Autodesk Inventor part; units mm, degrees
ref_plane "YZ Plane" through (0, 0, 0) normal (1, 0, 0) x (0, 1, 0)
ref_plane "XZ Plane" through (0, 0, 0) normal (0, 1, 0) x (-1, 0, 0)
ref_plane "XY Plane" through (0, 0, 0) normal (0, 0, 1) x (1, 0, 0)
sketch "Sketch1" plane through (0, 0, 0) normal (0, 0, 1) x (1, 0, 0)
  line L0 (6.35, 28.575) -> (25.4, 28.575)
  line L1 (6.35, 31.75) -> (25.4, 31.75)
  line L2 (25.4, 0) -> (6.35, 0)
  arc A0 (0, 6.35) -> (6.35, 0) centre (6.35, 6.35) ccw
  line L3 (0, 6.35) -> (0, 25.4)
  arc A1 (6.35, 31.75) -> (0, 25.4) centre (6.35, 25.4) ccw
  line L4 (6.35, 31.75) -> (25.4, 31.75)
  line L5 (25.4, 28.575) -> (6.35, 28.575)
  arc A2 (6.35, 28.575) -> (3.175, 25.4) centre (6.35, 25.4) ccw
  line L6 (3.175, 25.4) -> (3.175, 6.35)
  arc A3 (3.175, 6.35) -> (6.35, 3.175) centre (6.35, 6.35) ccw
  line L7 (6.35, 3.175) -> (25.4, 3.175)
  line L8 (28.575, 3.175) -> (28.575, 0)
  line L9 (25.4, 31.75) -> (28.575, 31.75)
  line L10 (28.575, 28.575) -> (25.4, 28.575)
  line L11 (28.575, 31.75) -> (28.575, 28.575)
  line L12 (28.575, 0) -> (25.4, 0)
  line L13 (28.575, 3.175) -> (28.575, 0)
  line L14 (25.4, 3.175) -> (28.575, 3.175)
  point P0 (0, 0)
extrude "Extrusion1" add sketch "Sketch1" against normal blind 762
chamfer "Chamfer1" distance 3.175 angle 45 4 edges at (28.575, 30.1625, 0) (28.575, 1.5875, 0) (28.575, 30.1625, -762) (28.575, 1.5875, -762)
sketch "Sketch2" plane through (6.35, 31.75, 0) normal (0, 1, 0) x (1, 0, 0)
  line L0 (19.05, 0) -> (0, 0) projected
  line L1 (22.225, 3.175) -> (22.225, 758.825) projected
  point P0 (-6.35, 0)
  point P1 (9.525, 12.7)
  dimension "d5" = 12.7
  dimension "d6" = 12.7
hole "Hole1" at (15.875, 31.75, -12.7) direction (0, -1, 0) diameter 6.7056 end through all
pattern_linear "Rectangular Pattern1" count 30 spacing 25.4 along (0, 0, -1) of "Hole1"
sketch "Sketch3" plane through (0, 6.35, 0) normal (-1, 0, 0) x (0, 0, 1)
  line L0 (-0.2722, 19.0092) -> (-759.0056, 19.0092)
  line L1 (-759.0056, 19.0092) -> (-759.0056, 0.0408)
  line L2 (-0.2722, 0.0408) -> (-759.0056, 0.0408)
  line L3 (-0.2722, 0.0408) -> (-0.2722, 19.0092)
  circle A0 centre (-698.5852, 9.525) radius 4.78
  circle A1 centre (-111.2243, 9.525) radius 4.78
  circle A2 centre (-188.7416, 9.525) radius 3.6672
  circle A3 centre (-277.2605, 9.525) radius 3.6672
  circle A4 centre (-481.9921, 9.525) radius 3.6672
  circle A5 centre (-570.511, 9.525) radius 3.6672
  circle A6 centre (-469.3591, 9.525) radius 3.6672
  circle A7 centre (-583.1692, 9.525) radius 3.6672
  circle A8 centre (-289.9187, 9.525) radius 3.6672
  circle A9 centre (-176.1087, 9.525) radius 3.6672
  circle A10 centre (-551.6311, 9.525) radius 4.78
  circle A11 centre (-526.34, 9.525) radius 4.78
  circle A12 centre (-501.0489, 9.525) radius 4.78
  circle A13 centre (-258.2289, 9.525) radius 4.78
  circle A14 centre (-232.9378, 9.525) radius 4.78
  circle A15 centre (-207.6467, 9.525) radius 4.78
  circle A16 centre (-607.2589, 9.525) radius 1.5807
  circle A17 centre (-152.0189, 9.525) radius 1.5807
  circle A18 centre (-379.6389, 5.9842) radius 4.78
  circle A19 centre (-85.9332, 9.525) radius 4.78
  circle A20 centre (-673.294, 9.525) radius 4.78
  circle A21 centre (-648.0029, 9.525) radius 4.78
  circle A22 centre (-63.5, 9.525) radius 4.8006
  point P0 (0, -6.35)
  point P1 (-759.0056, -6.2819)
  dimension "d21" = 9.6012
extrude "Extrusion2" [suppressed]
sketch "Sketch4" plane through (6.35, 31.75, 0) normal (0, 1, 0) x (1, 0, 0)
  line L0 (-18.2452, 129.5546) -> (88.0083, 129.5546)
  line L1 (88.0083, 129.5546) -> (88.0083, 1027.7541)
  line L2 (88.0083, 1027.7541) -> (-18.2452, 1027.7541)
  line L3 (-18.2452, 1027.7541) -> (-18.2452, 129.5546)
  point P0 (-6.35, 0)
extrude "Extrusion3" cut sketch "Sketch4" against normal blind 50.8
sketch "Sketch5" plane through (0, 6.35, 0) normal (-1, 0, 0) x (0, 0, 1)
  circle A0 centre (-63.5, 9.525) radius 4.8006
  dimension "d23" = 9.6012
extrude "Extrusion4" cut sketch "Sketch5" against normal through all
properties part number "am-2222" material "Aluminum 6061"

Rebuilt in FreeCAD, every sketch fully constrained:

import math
import FreeCAD as App
import Part
import Sketcher
Q = App.Units.Quantity


def edges_at(feature, points):
    """Names of the edges that pass closest to the given points."""
    edges = feature.Shape.Edges
    near = lambda p: min(range(len(edges)), key=lambda i: edges[i].distToShape(Part.Vertex(*p))[0])
    return sorted({f"Edge{near(p) + 1}" for p in points})

doc = App.newDocument("Part")
body = doc.addObject("PartDesign::Body", "Body")

# Sketch on XY plane
sketch1 = body.newObject("Sketcher::SketchObject", "Sketch")
sketch1.AttachmentSupport = (doc.getObject("XY_Plane"), [""])
sketch1.MapMode = "FlatFace"
sketch1.addGeometry(Part.ArcOfCircle(Part.Circle(App.Vector(6.3, 25.4, 0), App.Vector(0, 0, 1), 3.2), math.radians(90), math.radians(180)), False)
sketch1.addGeometry(Part.LineSegment(App.Vector(6.3, 28.6, 0), App.Vector(28.6, 28.6, 0)), False)
sketch1.addGeometry(Part.LineSegment(App.Vector(28.6, 28.6, 0), App.Vector(28.6, 31.8, 0)), False)
sketch1.addGeometry(Part.LineSegment(App.Vector(28.6, 31.8, 0), App.Vector(6.3, 31.8, 0)), False)
sketch1.addGeometry(Part.ArcOfCircle(Part.Circle(App.Vector(6.3, 25.4, 0), App.Vector(0, 0, 1), 6.4), math.radians(90), math.radians(180)), False)
sketch1.addGeometry(Part.LineSegment(App.Vector(0, 25.4, 0), App.Vector(0, 6.3, 0)), False)
sketch1.addGeometry(Part.ArcOfCircle(Part.Circle(App.Vector(6.3, 6.3, 0), App.Vector(0, 0, 1), 6.3), math.radians(180), math.radians(270)), False)
sketch1.addGeometry(Part.LineSegment(App.Vector(6.3, 0, 0), App.Vector(28.6, 0, 0)), False)
sketch1.addGeometry(Part.LineSegment(App.Vector(28.6, 0, 0), App.Vector(28.6, 3.2, 0)), False)
sketch1.addGeometry(Part.LineSegment(App.Vector(28.6, 3.2, 0), App.Vector(6.3, 3.2, 0)), False)
sketch1.addGeometry(Part.ArcOfCircle(Part.Circle(App.Vector(6.3, 6.3, 0), App.Vector(0, 0, 1), 3.2), math.radians(180), math.radians(270)), False)
sketch1.addGeometry(Part.LineSegment(App.Vector(3.2, 6.3, 0), App.Vector(3.2, 25.4, 0)), False)
sketch1.addConstraint(Sketcher.Constraint("Tangent", 0, 1, 1, 1))
sketch1.addConstraint(Sketcher.Constraint("Coincident", 1, 2, 2, 1))
sketch1.addConstraint(Sketcher.Constraint("Coincident", 2, 2, 3, 1))
sketch1.addConstraint(Sketcher.Constraint("Tangent", 3, 2, 4, 1))
sketch1.addConstraint(Sketcher.Constraint("Tangent", 4, 2, 5, 1))
sketch1.addConstraint(Sketcher.Constraint("Tangent", 5, 2, 6, 1))
sketch1.addConstraint(Sketcher.Constraint("Tangent", 6, 2, 7, 1))
sketch1.addConstraint(Sketcher.Constraint("Coincident", 7, 2, 8, 1))
sketch1.addConstraint(Sketcher.Constraint("Coincident", 8, 2, 9, 1))
sketch1.addConstraint(Sketcher.Constraint("Tangent", 9, 2, 10, 2))
sketch1.addConstraint(Sketcher.Constraint("Tangent", 10, 1, 11, 1))
sketch1.addConstraint(Sketcher.Constraint("Tangent", 11, 2, 0, 2))
sketch1.addConstraint(Sketcher.Constraint("Horizontal", 1))
sketch1.addConstraint(Sketcher.Constraint("Vertical", 2))
sketch1.addConstraint(Sketcher.Constraint("Horizontal", 3))
sketch1.addConstraint(Sketcher.Constraint("Vertical", 5))
sketch1.addConstraint(Sketcher.Constraint("Horizontal", 7))
sketch1.addConstraint(Sketcher.Constraint("Vertical", 8))
sketch1.addConstraint(Sketcher.Constraint("Horizontal", 9))
sketch1.addConstraint(Sketcher.Constraint("Vertical", 11))
sketch1.addConstraint(Sketcher.Constraint("Coincident", 4, 3, 0, 3))
sketch1.addConstraint(Sketcher.Constraint("Coincident", 10, 3, 6, 3))
sketch1.addConstraint(Sketcher.Constraint("Equal", 4, 6))
sketch1.addConstraint(Sketcher.Constraint("PointOnObject", 4, 2, -2))
sketch1.addConstraint(Sketcher.Constraint("PointOnObject", 6, 2, -1))
sketch1.addConstraint(Sketcher.Constraint("Vertical", 2, 2, 7, 2))
sketch1.addConstraint(Sketcher.Constraint("Radius", 4, Q("0.25 in")))
sketch1.addConstraint(Sketcher.Constraint("DistanceY", -1, 1, 0, 3, Q("1 in")))
sketch1.addConstraint(Sketcher.Constraint("Radius", 0, Q("0.125 in")))
sketch1.addConstraint(Sketcher.Constraint("DistanceX", 1, 1, 1, 2, Q("0.875 in")))
pad1 = body.newObject("PartDesign::Pad", "Pad")
pad1.Profile = sketch1
pad1.Length = Q("30 in")
pad1.Reversed = True
doc.recompute()

chamfer = body.newObject("PartDesign::Chamfer", "Chamfer")
chamfer.Base = (pad1, edges_at(pad1, [
    (28.575, 30.163, 0),
    (28.575, 1.587, 0),
    (28.575, 30.163, -762),
    (28.575, 1.587, -762),
]))
chamfer.Size = Q("0.125 in")

# Sketch on XZ plane
sketch2 = body.newObject("Sketcher::SketchObject", "Sketch001")
sketch2.AttachmentSupport = (doc.getObject("XZ_Plane"), [""])
sketch2.MapMode = "FlatFace"
sketch2.AttachmentOffset = App.Placement(App.Vector(0, 0, -1.25 * 25.4), App.Rotation())
sketch2.addGeometry(Part.Circle(App.Vector(15.9, -12.7, 0), App.Vector(0, 0, 1), 3.4), False)
sketch2.addConstraint(Sketcher.Constraint("Diameter", 0, Q("0.264 in")))
sketch2.addConstraint(Sketcher.Constraint("DistanceY", 0, 3, -1, 1, Q("0.5 in")))
sketch2.addConstraint(Sketcher.Constraint("DistanceX", -1, 1, 0, 3, Q("0.625 in")))
doc.recompute()
hole = body.newObject("PartDesign::Hole", "Hole")
hole.Profile = sketch2
hole.ThreadType = "None"
hole.Diameter = Q("0.264 in")
hole.DepthType = "ThroughAll"
hole.Reversed = True
doc.recompute()

linearpattern = body.newObject("PartDesign::LinearPattern", "LinearPattern")
linearpattern.Originals = [hole]
linearpattern.Direction = (doc.getObject("Z_Axis"), [""])
linearpattern.Mode = "offset"
linearpattern.Offset = Q("1 in")
linearpattern.Occurrences = 30
linearpattern.Reversed = True
body.Tip = linearpattern

# Sketch on XZ plane
sketch3 = body.newObject("Sketcher::SketchObject", "Sketch002")
sketch3.AttachmentSupport = (doc.getObject("XZ_Plane"), [""])
sketch3.MapMode = "FlatFace"
sketch3.AttachmentOffset = App.Placement(App.Vector(0, 0, -1.25 * 25.4), App.Rotation())
sketch3.addGeometry(Part.LineSegment(App.Vector(-12, -1028, 0), App.Vector(-12, -130, 0)), False)
sketch3.addGeometry(Part.LineSegment(App.Vector(-12, -130, 0), App.Vector(94, -130, 0)), False)
sketch3.addGeometry(Part.LineSegment(App.Vector(94, -130, 0), App.Vector(94, -1028, 0)), False)
sketch3.addGeometry(Part.LineSegment(App.Vector(94, -1028, 0), App.Vector(-12, -1028, 0)), False)
sketch3.addConstraint(Sketcher.Constraint("Coincident", 0, 2, 1, 1))
sketch3.addConstraint(Sketcher.Constraint("Coincident", 1, 2, 2, 1))
sketch3.addConstraint(Sketcher.Constraint("Coincident", 2, 2, 3, 1))
sketch3.addConstraint(Sketcher.Constraint("Coincident", 3, 2, 0, 1))
sketch3.addConstraint(Sketcher.Constraint("Vertical", 0))
sketch3.addConstraint(Sketcher.Constraint("Horizontal", 1))
sketch3.addConstraint(Sketcher.Constraint("Vertical", 2))
sketch3.addConstraint(Sketcher.Constraint("Horizontal", 3))
sketch3.addConstraint(Sketcher.Constraint("DistanceX", 1, 1, 1, 2, Q("4.1832 in")))
sketch3.addConstraint(Sketcher.Constraint("DistanceY", 0, 1, 0, 2, Q("898.1995 mm")))
sketch3.addConstraint(Sketcher.Constraint("DistanceX", -1, 1, 1, 2, Q("3.7149 in")))
sketch3.addConstraint(Sketcher.Constraint("DistanceY", 0, 2, -1, 1, Q("129.5546 mm")))
pocket1 = body.newObject("PartDesign::Pocket", "Pocket")
pocket1.Profile = sketch3
pocket1.Length = Q("2 in")
pocket1.Reversed = True

# Sketch on YZ plane
sketch4 = body.newObject("Sketcher::SketchObject", "Sketch003")
sketch4.AttachmentSupport = (doc.getObject("YZ_Plane"), [""])
sketch4.MapMode = "FlatFace"
sketch4.addGeometry(Part.Circle(App.Vector(15.9, -63.5, 0), App.Vector(0, 0, 1), 4.8), False)
sketch4.addConstraint(Sketcher.Constraint("Diameter", 0, Q("0.378 in")))
sketch4.addConstraint(Sketcher.Constraint("DistanceY", 0, 3, -1, 1, Q("2.5 in")))
sketch4.addConstraint(Sketcher.Constraint("DistanceX", -1, 1, 0, 3, Q("0.625 in")))
pocket2 = body.newObject("PartDesign::Pocket", "Pocket001")
pocket2.Profile = sketch4
pocket2.Type = "ThroughAll"
pocket2.Reversed = True

doc.recompute()
